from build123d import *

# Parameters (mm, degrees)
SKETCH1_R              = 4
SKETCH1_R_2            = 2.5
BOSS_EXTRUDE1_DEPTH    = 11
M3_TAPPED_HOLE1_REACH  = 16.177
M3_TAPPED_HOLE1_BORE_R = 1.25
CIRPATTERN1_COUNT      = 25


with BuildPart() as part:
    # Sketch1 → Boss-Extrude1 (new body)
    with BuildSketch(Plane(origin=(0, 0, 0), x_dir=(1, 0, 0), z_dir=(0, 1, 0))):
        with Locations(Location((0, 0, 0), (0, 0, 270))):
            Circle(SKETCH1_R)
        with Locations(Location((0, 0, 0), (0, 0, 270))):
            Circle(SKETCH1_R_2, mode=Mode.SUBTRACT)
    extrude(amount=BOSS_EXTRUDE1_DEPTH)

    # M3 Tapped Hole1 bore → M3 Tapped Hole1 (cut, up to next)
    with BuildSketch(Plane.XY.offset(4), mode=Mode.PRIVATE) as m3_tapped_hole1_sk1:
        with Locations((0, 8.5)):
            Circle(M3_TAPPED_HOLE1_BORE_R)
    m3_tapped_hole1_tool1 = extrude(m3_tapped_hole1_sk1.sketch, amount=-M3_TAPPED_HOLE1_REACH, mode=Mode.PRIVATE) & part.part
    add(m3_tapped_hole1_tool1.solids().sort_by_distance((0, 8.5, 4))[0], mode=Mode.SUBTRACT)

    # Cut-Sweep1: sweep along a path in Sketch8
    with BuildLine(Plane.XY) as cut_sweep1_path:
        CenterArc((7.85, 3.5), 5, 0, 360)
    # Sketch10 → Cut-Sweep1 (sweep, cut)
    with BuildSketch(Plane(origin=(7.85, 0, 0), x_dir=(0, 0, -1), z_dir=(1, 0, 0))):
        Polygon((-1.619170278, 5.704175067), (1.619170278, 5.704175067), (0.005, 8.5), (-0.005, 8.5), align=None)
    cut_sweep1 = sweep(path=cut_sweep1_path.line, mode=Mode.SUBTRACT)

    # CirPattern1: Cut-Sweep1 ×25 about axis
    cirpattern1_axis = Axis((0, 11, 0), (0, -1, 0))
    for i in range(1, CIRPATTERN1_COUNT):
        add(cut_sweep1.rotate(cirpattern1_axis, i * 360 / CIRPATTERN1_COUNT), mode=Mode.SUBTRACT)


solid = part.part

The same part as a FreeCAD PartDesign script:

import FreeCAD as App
import Part
import Sketcher
Q = App.Units.Quantity


def add_polygon(sketch, points):
    """Adds a closed chain of lines whose ends are joined by coincident constraints."""
    first, n = sketch.GeometryCount, len(points)
    for a, b in zip(points, points[1:] + points[:1]):
        sketch.addGeometry(Part.LineSegment(App.Vector(*a, 0), App.Vector(*b, 0)), False)
    for i in range(n):
        sketch.addConstraint(Sketcher.Constraint("Coincident", first + i, 2, first + (i + 1) % n, 1))

doc = App.newDocument("Part")
body = doc.addObject("PartDesign::Body", "Body")

# Sketch on XZ plane
sketch1 = body.newObject("Sketcher::SketchObject", "Sketch")
sketch1.AttachmentSupport = (doc.getObject("XZ_Plane"), [""])
sketch1.MapMode = "FlatFace"
sketch1.addGeometry(Part.Circle(App.Vector(0, 0, 0), App.Vector(0, 0, 1), 4), False)
sketch1.addGeometry(Part.Circle(App.Vector(0, 0, 0), App.Vector(0, 0, 1), 2.5), False)
sketch1.addConstraint(Sketcher.Constraint("Coincident", 0, 3, -1, 1))
sketch1.addConstraint(Sketcher.Constraint("Coincident", 1, 3, -1, 1))
sketch1.addConstraint(Sketcher.Constraint("Diameter", 0, Q("8 mm")))
sketch1.addConstraint(Sketcher.Constraint("Diameter", 1, Q("5 mm")))
pad1 = body.newObject("PartDesign::Pad", "Pad")
pad1.Profile = sketch1
pad1.Length = 11
pad1.Reversed = True

# Sketch on XY plane
sketch2 = body.newObject("Sketcher::SketchObject", "Sketch001")
sketch2.AttachmentSupport = (doc.getObject("XY_Plane"), [""])
sketch2.MapMode = "FlatFace"
sketch2.AttachmentOffset = App.Placement(App.Vector(0, 0, 4), App.Rotation())
sketch2.addGeometry(Part.Circle(App.Vector(0, 8.5, 0), App.Vector(0, 0, 1), 1.25), False)
sketch2.addConstraint(Sketcher.Constraint("PointOnObject", 0, 3, -2))
sketch2.addConstraint(Sketcher.Constraint("Diameter", 0, Q("2.5 mm")))
sketch2.addConstraint(Sketcher.Constraint("DistanceY", -1, 1, 0, 3, Q("8.5 mm")))
pocket1 = body.newObject("PartDesign::Pocket", "Pocket")
pocket1.Profile = sketch2
pocket1.Type = "UpToFirst"

# Sketch on YZ plane
sketch3 = body.newObject("Sketcher::SketchObject", "Sketch002")
sketch3.AttachmentSupport = (doc.getObject("YZ_Plane"), [""])
sketch3.MapMode = "FlatFace"
sketch3.AttachmentOffset = App.Placement(App.Vector(0, 0, 7.85), App.Rotation())
add_polygon(sketch3, [(5.704175, 1.61917), (5.704175, -1.61917), (8.5, -0.005), (8.5, 0.005)])  # lines 0-3
sketch3.addConstraint(Sketcher.Constraint("Vertical", 0))
sketch3.addConstraint(Sketcher.Constraint("Vertical", 2))
sketch3.addConstraint(Sketcher.Constraint("Equal", 1, 3))
sketch3.addConstraint(Sketcher.Constraint("Angle", 1, Q("30 deg")))
sketch3.addConstraint(Sketcher.Constraint("DistanceY", 2, 1, 2, 2, Q("0.01 mm")))
sketch3.addConstraint(Sketcher.Constraint("DistanceX", -1, 1, 1, 2, Q("8.5 mm")))
sketch3.addConstraint(Sketcher.Constraint("DistanceY", 1, 2, -1, 1, Q("0.005 mm")))
sketch3.addConstraint(Sketcher.Constraint("DistanceY", 0, 2, 0, 1, Q("3.238341 mm")))

# Sketch on XY plane
sketch4 = body.newObject("Sketcher::SketchObject", "Sketch003")
sketch4.AttachmentSupport = (doc.getObject("XY_Plane"), [""])
sketch4.MapMode = "FlatFace"
sketch4.addGeometry(Part.Circle(App.Vector(7.85, 3.5, 0), App.Vector(0, 0, 1), 5), False)
sketch4.addConstraint(Sketcher.Constraint("Diameter", 0, Q("10 mm")))
sketch4.addConstraint(Sketcher.Constraint("DistanceY", -1, 1, 0, 3, Q("3.5 mm")))
sketch4.addConstraint(Sketcher.Constraint("DistanceX", -1, 1, 0, 3, Q("7.85 mm")))
doc.recompute()

subtractivepipe = body.newObject("PartDesign::SubtractivePipe", "SubtractivePipe")
subtractivepipe.Profile = sketch3
subtractivepipe.Spine = (sketch4, ["Edge1"])
doc.recompute()

polarpattern = body.newObject("PartDesign::PolarPattern", "PolarPattern")
polarpattern.Originals = [subtractivepipe]
polarpattern.Axis = (doc.getObject("Y_Axis"), [""])
polarpattern.Angle = 360
polarpattern.Occurrences = 25
body.Tip = polarpattern

doc.recompute()
